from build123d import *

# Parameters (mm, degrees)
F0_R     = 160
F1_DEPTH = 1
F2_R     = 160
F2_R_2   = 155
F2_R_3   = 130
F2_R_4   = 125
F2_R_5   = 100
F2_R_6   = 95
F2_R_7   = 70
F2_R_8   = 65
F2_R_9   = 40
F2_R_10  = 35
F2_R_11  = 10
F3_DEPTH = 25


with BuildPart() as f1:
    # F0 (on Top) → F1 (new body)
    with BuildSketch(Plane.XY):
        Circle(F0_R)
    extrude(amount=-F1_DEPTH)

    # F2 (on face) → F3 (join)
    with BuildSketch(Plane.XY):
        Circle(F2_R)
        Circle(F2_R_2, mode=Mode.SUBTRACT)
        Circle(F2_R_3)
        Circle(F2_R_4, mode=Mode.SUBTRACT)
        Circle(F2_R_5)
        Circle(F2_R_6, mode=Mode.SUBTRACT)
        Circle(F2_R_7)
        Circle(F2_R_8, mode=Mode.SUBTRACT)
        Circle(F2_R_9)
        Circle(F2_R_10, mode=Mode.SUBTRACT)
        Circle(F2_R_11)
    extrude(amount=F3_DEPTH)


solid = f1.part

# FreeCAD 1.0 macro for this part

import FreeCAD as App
import Part
import Sketcher

doc = App.newDocument("Part")
body = doc.addObject("PartDesign::Body", "Body")

sketch1 = body.newObject("Sketcher::SketchObject", "Sketch")
sketch1.AttachmentSupport = (doc.getObject("XY_Plane"), [""])
sketch1.MapMode = "FlatFace"
sketch1.addGeometry(Part.Circle(App.Vector(0, 0, 0), App.Vector(0, 0, 1), 160), False)
sketch1.addConstraint(Sketcher.Constraint("Coincident", 0, 3, -1, 1))
sketch1.addConstraint(Sketcher.Constraint("Diameter", 0, 320.0))
pad1 = body.newObject("PartDesign::Pad", "Pad")
pad1.Profile = sketch1
pad1.Length = 1
pad1.Reversed = True

sketch2 = body.newObject("Sketcher::SketchObject", "Sketch001")
sketch2.AttachmentSupport = (doc.getObject("XY_Plane"), [""])
sketch2.MapMode = "FlatFace"
sketch2.addGeometry(Part.Circle(App.Vector(0, 0, 0), App.Vector(0, 0, 1), 160), False)
sketch2.addGeometry(Part.Circle(App.Vector(0, 0, 0), App.Vector(0, 0, 1), 155), False)
sketch2.addGeometry(Part.Circle(App.Vector(0, 0, 0), App.Vector(0, 0, 1), 130), False)
sketch2.addGeometry(Part.Circle(App.Vector(0, 0, 0), App.Vector(0, 0, 1), 125), False)
sketch2.addGeometry(Part.Circle(App.Vector(0, 0, 0), App.Vector(0, 0, 1), 100), False)
sketch2.addGeometry(Part.Circle(App.Vector(0, 0, 0), App.Vector(0, 0, 1), 95), False)
sketch2.addGeometry(Part.Circle(App.Vector(0, 0, 0), App.Vector(0, 0, 1), 70), False)
sketch2.addGeometry(Part.Circle(App.Vector(0, 0, 0), App.Vector(0, 0, 1), 65), False)
sketch2.addGeometry(Part.Circle(App.Vector(0, 0, 0), App.Vector(0, 0, 1), 40), False)
sketch2.addGeometry(Part.Circle(App.Vector(0, 0, 0), App.Vector(0, 0, 1), 35), False)
sketch2.addGeometry(Part.Circle(App.Vector(0, 0, 0), App.Vector(0, 0, 1), 10), False)
sketch2.addConstraint(Sketcher.Constraint("Coincident", 0, 3, -1, 1))
sketch2.addConstraint(Sketcher.Constraint("Coincident", 1, 3, -1, 1))
sketch2.addConstraint(Sketcher.Constraint("Coincident", 2, 3, -1, 1))
sketch2.addConstraint(Sketcher.Constraint("Coincident", 3, 3, -1, 1))
sketch2.addConstraint(Sketcher.Constraint("Coincident", 4, 3, -1, 1))
sketch2.addConstraint(Sketcher.Constraint("Coincident", 5, 3, -1, 1))
sketch2.addConstraint(Sketcher.Constraint("Coincident", 6, 3, -1, 1))
sketch2.addConstraint(Sketcher.Constraint("Coincident", 7, 3, -1, 1))
sketch2.addConstraint(Sketcher.Constraint("Coincident", 8, 3, -1, 1))
sketch2.addConstraint(Sketcher.Constraint("Coincident", 9, 3, -1, 1))
sketch2.addConstraint(Sketcher.Constraint("Coincident", 10, 3, -1, 1))
sketch2.addConstraint(Sketcher.Constraint("Diameter", 0, 320.0))
sketch2.addConstraint(Sketcher.Constraint("Diameter", 1, 310.0))
sketch2.addConstraint(Sketcher.Constraint("Diameter", 2, 260.0))
sketch2.addConstraint(Sketcher.Constraint("Diameter", 3, 250.0))
sketch2.addConstraint(Sketcher.Constraint("Diameter", 4, 200.0))
sketch2.addConstraint(Sketcher.Constraint("Diameter", 5, 190.0))
sketch2.addConstraint(Sketcher.Constraint("Diameter", 6, 140.0))
sketch2.addConstraint(Sketcher.Constraint("Diameter", 7, 130.0))
sketch2.addConstraint(Sketcher.Constraint("Diameter", 8, 80.0))
sketch2.addConstraint(Sketcher.Constraint("Diameter", 9, 70.0))
sketch2.addConstraint(Sketcher.Constraint("Diameter", 10, 20.0))
pad2 = body.newObject("PartDesign::Pad", "Pad001")
pad2.Profile = sketch2
pad2.Length = 25

doc.recompute()
